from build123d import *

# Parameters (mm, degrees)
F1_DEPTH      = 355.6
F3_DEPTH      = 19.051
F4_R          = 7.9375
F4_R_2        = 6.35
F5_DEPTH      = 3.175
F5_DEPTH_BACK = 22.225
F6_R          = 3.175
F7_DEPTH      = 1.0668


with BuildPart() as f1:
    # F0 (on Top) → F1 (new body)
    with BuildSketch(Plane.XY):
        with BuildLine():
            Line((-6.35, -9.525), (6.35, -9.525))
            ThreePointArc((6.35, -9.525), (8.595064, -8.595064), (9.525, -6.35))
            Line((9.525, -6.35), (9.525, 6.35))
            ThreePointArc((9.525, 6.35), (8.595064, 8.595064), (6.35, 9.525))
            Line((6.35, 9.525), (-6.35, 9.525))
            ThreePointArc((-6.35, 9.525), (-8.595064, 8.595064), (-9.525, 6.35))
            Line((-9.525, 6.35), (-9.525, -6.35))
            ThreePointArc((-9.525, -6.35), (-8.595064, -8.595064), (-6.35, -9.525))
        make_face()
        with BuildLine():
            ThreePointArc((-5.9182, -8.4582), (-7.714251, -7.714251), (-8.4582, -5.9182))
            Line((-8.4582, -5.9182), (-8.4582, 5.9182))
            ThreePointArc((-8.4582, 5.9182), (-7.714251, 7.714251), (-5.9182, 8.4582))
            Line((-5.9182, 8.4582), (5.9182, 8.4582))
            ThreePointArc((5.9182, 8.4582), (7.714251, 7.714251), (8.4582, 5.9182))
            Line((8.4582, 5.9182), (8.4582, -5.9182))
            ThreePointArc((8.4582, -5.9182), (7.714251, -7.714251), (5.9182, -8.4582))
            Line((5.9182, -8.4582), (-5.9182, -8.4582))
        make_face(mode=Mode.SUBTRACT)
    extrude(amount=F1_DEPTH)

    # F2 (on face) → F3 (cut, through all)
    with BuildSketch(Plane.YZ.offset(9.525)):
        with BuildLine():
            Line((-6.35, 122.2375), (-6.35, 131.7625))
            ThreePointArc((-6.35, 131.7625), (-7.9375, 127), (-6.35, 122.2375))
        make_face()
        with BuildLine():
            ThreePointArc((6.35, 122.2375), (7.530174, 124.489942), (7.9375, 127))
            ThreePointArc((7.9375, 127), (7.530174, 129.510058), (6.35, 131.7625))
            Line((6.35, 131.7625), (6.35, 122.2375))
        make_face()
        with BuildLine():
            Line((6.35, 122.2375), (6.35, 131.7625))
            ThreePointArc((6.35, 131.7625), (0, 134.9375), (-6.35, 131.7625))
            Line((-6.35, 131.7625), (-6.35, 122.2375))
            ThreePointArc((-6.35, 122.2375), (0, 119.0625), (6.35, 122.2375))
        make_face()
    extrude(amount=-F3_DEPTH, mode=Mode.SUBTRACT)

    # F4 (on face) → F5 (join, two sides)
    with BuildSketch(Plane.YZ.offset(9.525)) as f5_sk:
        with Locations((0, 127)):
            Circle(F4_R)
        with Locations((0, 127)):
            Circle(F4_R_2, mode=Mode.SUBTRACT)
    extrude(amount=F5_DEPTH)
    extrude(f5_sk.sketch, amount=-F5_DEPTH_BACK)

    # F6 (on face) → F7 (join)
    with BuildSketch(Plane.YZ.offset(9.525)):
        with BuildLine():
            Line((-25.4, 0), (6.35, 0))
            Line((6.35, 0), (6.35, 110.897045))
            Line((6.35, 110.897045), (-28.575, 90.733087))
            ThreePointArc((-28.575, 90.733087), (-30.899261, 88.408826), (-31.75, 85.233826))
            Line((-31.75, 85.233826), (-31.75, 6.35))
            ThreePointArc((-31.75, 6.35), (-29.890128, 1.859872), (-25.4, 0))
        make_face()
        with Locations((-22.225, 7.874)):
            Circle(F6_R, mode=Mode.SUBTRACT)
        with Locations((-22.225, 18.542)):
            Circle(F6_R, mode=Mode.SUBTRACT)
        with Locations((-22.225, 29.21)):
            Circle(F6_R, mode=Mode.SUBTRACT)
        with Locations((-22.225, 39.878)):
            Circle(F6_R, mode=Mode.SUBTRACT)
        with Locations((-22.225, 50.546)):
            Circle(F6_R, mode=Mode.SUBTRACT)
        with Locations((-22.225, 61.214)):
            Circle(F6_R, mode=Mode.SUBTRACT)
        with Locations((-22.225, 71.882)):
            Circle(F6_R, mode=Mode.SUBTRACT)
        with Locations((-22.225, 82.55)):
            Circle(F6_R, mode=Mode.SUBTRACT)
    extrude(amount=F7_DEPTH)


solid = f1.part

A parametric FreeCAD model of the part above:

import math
import FreeCAD as App
import Part
import Sketcher

V = App.Vector
Q = App.Units.Quantity

doc = App.newDocument("Part")
body = doc.addObject("PartDesign::Body", "Body")

# Sketch on XY plane
sketch1 = body.newObject("Sketcher::SketchObject", "Sketch")
sketch1.AttachmentSupport = (doc.getObject("XY_Plane"), [""])
sketch1.MapMode = "FlatFace"
sketch1.addGeometry(Part.LineSegment(V(-6.3, -9.5, 0), V(6.3, -9.5, 0)), False)
sketch1.addGeometry(Part.ArcOfCircle(Part.Circle(V(6.3, -6.3, 0), V(0, 0, 1), 3.2), math.radians(-90), math.radians(0)), False)
sketch1.addGeometry(Part.LineSegment(V(9.5, -6.3, 0), V(9.5, 6.3, 0)), False)
sketch1.addGeometry(Part.ArcOfCircle(Part.Circle(V(6.3, 6.3, 0), V(0, 0, 1), 3.2), math.radians(0), math.radians(90)), False)
sketch1.addGeometry(Part.LineSegment(V(6.3, 9.5, 0), V(-6.3, 9.5, 0)), False)
sketch1.addGeometry(Part.ArcOfCircle(Part.Circle(V(-6.3, 6.3, 0), V(0, 0, 1), 3.2), math.radians(90), math.radians(180)), False)
sketch1.addGeometry(Part.LineSegment(V(-9.5, 6.3, 0), V(-9.5, -6.3, 0)), False)
sketch1.addGeometry(Part.ArcOfCircle(Part.Circle(V(-6.3, -6.3, 0), V(0, 0, 1), 3.2), math.radians(-180), math.radians(-90)), False)
sketch1.addGeometry(Part.LineSegment(V(5.9, -8.5, 0), V(-5.9, -8.5, 0)), False)
sketch1.addGeometry(Part.ArcOfCircle(Part.Circle(V(-5.9, -5.9, 0), V(0, 0, 1), 2.5), math.radians(-180), math.radians(-90)), False)
sketch1.addGeometry(Part.LineSegment(V(-8.5, -5.9, 0), V(-8.5, 5.9, 0)), False)
sketch1.addGeometry(Part.ArcOfCircle(Part.Circle(V(-5.9, 5.9, 0), V(0, 0, 1), 2.5), math.radians(90), math.radians(180)), False)
sketch1.addGeometry(Part.LineSegment(V(-5.9, 8.5, 0), V(5.9, 8.5, 0)), False)
sketch1.addGeometry(Part.ArcOfCircle(Part.Circle(V(5.9, 5.9, 0), V(0, 0, 1), 2.5), math.radians(0), math.radians(90)), False)
sketch1.addGeometry(Part.LineSegment(V(8.5, 5.9, 0), V(8.5, -5.9, 0)), False)
sketch1.addGeometry(Part.ArcOfCircle(Part.Circle(V(5.9, -5.9, 0), V(0, 0, 1), 2.5), math.radians(-90), math.radians(0)), False)
sketch1.addConstraint(Sketcher.Constraint("Tangent", 0, 2, 1, 1))
sketch1.addConstraint(Sketcher.Constraint("Tangent", 1, 2, 2, 1))
sketch1.addConstraint(Sketcher.Constraint("Tangent", 2, 2, 3, 1))
sketch1.addConstraint(Sketcher.Constraint("Tangent", 3, 2, 4, 1))
sketch1.addConstraint(Sketcher.Constraint("Tangent", 4, 2, 5, 1))
sketch1.addConstraint(Sketcher.Constraint("Tangent", 5, 2, 6, 1))
sketch1.addConstraint(Sketcher.Constraint("Tangent", 6, 2, 7, 1))
sketch1.addConstraint(Sketcher.Constraint("Tangent", 7, 2, 0, 1))
sketch1.addConstraint(Sketcher.Constraint("Tangent", 8, 2, 9, 2))
sketch1.addConstraint(Sketcher.Constraint("Tangent", 9, 1, 10, 1))
sketch1.addConstraint(Sketcher.Constraint("Tangent", 10, 2, 11, 2))
sketch1.addConstraint(Sketcher.Constraint("Tangent", 11, 1, 12, 1))
sketch1.addConstraint(Sketcher.Constraint("Tangent", 12, 2, 13, 2))
sketch1.addConstraint(Sketcher.Constraint("Tangent", 13, 1, 14, 1))
sketch1.addConstraint(Sketcher.Constraint("Tangent", 14, 2, 15, 2))
sketch1.addConstraint(Sketcher.Constraint("Tangent", 15, 1, 8, 1))
sketch1.addConstraint(Sketcher.Constraint("Horizontal", 0))
sketch1.addConstraint(Sketcher.Constraint("Vertical", 2))
sketch1.addConstraint(Sketcher.Constraint("Horizontal", 4))
sketch1.addConstraint(Sketcher.Constraint("Vertical", 6))
sketch1.addConstraint(Sketcher.Constraint("Horizontal", 8))
sketch1.addConstraint(Sketcher.Constraint("Vertical", 10))
sketch1.addConstraint(Sketcher.Constraint("Horizontal", 12))
sketch1.addConstraint(Sketcher.Constraint("Vertical", 14))
sketch1.addConstraint(Sketcher.Constraint("Equal", 1, 3))
sketch1.addConstraint(Sketcher.Constraint("Equal", 3, 5))
sketch1.addConstraint(Sketcher.Constraint("Equal", 5, 7))
sketch1.addConstraint(Sketcher.Constraint("Equal", 9, 11))
sketch1.addConstraint(Sketcher.Constraint("Equal", 11, 13))
sketch1.addConstraint(Sketcher.Constraint("Equal", 13, 15))
sketch1.addConstraint(Sketcher.Constraint("Symmetric", 1, 3, 5, 3, -1, 1))
sketch1.addConstraint(Sketcher.Constraint("Symmetric", 9, 3, 13, 3, -1, 1))
sketch1.addConstraint(Sketcher.Constraint("Equal", 4, 2))
sketch1.addConstraint(Sketcher.Constraint("Equal", 12, 10))
sketch1.addConstraint(Sketcher.Constraint("Radius", 9, Q("0.1 in")))
sketch1.addConstraint(Sketcher.Constraint("DistanceX", 0, 1, 0, 2, Q("0.5 in")))
sketch1.addConstraint(Sketcher.Constraint("Radius", 1, Q("0.125 in")))
sketch1.addConstraint(Sketcher.Constraint("DistanceX", 8, 2, 8, 1, Q("0.466 in")))
pad1 = body.newObject("PartDesign::Pad", "Pad")
pad1.Profile = sketch1
pad1.Length = Q("14 in")

# Sketch on YZ plane
sketch2 = body.newObject("Sketcher::SketchObject", "Sketch001")
sketch2.AttachmentSupport = (doc.getObject("YZ_Plane"), [""])
sketch2.MapMode = "FlatFace"
sketch2.AttachmentOffset = App.Placement(V(0, 0, 0.375 * 25.4), App.Rotation())
sketch2.addGeometry(Part.ArcOfCircle(Part.Circle(V(0, 127, 0), V(0, 0, 1), 8), math.radians(-37), math.radians(0)), False)
sketch2.addGeometry(Part.ArcOfCircle(Part.Circle(V(0, 127, 0), V(0, 0, 1), 8), math.radians(0), math.radians(37)), False)
sketch2.addGeometry(Part.ArcOfCircle(Part.Circle(V(0, 127, 0), V(0, 0, 1), 8), math.radians(37), math.radians(323)), False)
sketch2.addConstraint(Sketcher.Constraint("Tangent", 0, 2, 1, 1))
sketch2.addConstraint(Sketcher.Constraint("Tangent", 1, 2, 2, 1))
sketch2.addConstraint(Sketcher.Constraint("Tangent", 2, 2, 0, 1))
sketch2.addConstraint(Sketcher.Constraint("PointOnObject", 2, 3, -2))
sketch2.addConstraint(Sketcher.Constraint("Horizontal", 2, 3, 0, 2))
sketch2.addConstraint(Sketcher.Constraint("Vertical", 1, 2, 2, 2))
sketch2.addConstraint(Sketcher.Constraint("DistanceY", -1, 1, 0, 3, Q("4.9999999 in")))
sketch2.addConstraint(Sketcher.Constraint("Radius", 2, Q("0.3125 in")))
sketch2.addConstraint(Sketcher.Constraint("DistanceX", -1, 1, 1, 2, Q("0.25 in")))
pocket1 = body.newObject("PartDesign::Pocket", "Pocket")
pocket1.Profile = sketch2
pocket1.Type = "ThroughAll"

# Sketch on YZ plane
sketch3 = body.newObject("Sketcher::SketchObject", "Sketch002")
sketch3.AttachmentSupport = (doc.getObject("YZ_Plane"), [""])
sketch3.MapMode = "FlatFace"
sketch3.AttachmentOffset = App.Placement(V(0, 0, 0.375 * 25.4), App.Rotation())
sketch3.addGeometry(Part.Circle(V(0, 127, 0), V(0, 0, 1), 8), False)
sketch3.addGeometry(Part.Circle(V(0, 127, 0), V(0, 0, 1), 6), False)
sketch3.addConstraint(Sketcher.Constraint("Coincident", 1, 3, 0, 3))
sketch3.addConstraint(Sketcher.Constraint("PointOnObject", 0, 3, -2))
sketch3.addConstraint(Sketcher.Constraint("Diameter", 1, Q("0.5 in")))
sketch3.addConstraint(Sketcher.Constraint("Diameter", 0, Q("0.625 in")))
sketch3.addConstraint(Sketcher.Constraint("DistanceY", -1, 1, 0, 3, Q("5 in")))
pad2 = body.newObject("PartDesign::Pad", "Pad001")
pad2.Profile = sketch3
pad2.Type = "TwoLengths"
pad2.Length = Q("0.125 in")
pad2.Length2 = Q("0.875 in")

# Sketch on YZ plane
sketch4 = body.newObject("Sketcher::SketchObject", "Sketch003")
sketch4.AttachmentSupport = (doc.getObject("YZ_Plane"), [""])
sketch4.MapMode = "FlatFace"
sketch4.AttachmentOffset = App.Placement(V(0, 0, 0.375 * 25.4), App.Rotation())
sketch4.addGeometry(Part.LineSegment(V(-25.4, 0, 0), V(6.3, 0, 0)), False)
sketch4.addGeometry(Part.LineSegment(V(6.3, 0, 0), V(6.3, 110.9, 0)), False)
sketch4.addGeometry(Part.LineSegment(V(6.3, 110.9, 0), V(-28.6, 90.7, 0)), False)
sketch4.addGeometry(Part.ArcOfCircle(Part.Circle(V(-25.4, 85.2, 0), V(0, 0, 1), 6.4), math.radians(120), math.radians(180)), False)
sketch4.addGeometry(Part.LineSegment(V(-31.8, 85.2, 0), V(-31.8, 6.3, 0)), False)
sketch4.addGeometry(Part.ArcOfCircle(Part.Circle(V(-25.4, 6.4, 0), V(0, 0, 1), 6.4), math.radians(-180), math.radians(-90)), False)
sketch4.addGeometry(Part.Circle(V(-22.2, 7.9, 0), V(0, 0, 1), 3.2), False)
sketch4.addGeometry(Part.Circle(V(-22.2, 18.5, 0), V(0, 0, 1), 3.2), False)
sketch4.addGeometry(Part.Circle(V(-22.2, 29.2, 0), V(0, 0, 1), 3.2), False)
sketch4.addGeometry(Part.Circle(V(-22.2, 39.9, 0), V(0, 0, 1), 3.2), False)
sketch4.addGeometry(Part.Circle(V(-22.2, 50.5, 0), V(0, 0, 1), 3.2), False)
sketch4.addGeometry(Part.Circle(V(-22.2, 61.2, 0), V(0, 0, 1), 3.2), False)
sketch4.addGeometry(Part.Circle(V(-22.2, 71.9, 0), V(0, 0, 1), 3.2), False)
sketch4.addGeometry(Part.Circle(V(-22.2, 82.5, 0), V(0, 0, 1), 3.2), False)
sketch4.addConstraint(Sketcher.Constraint("Coincident", 0, 2, 1, 1))
sketch4.addConstraint(Sketcher.Constraint("Coincident", 1, 2, 2, 1))
sketch4.addConstraint(Sketcher.Constraint("Tangent", 2, 2, 3, 1))
sketch4.addConstraint(Sketcher.Constraint("Tangent", 3, 2, 4, 1))
sketch4.addConstraint(Sketcher.Constraint("Tangent", 4, 2, 5, 1))
sketch4.addConstraint(Sketcher.Constraint("Tangent", 5, 2, 0, 1))
sketch4.addConstraint(Sketcher.Constraint("Horizontal", 0))
sketch4.addConstraint(Sketcher.Constraint("Vertical", 1))
sketch4.addConstraint(Sketcher.Constraint("Vertical", 4))
sketch4.addConstraint(Sketcher.Constraint("Equal", 3, 5))
sketch4.addConstraint(Sketcher.Constraint("Equal", 6, 7))
sketch4.addConstraint(Sketcher.Constraint("Equal", 7, 8))
sketch4.addConstraint(Sketcher.Constraint("Equal", 8, 9))
sketch4.addConstraint(Sketcher.Constraint("Equal", 9, 10))
sketch4.addConstraint(Sketcher.Constraint("Equal", 10, 11))
sketch4.addConstraint(Sketcher.Constraint("Equal", 11, 12))
sketch4.addConstraint(Sketcher.Constraint("Equal", 12, 13))
sketch4.addConstraint(Sketcher.Constraint("PointOnObject", 0, 2, -1))
sketch4.addConstraint(Sketcher.Constraint("Vertical", 6, 3, 7, 3))
sketch4.addConstraint(Sketcher.Constraint("Vertical", 7, 3, 8, 3))
sketch4.addConstraint(Sketcher.Constraint("Vertical", 8, 3, 9, 3))
sketch4.addConstraint(Sketcher.Constraint("Vertical", 9, 3, 10, 3))
sketch4.addConstraint(Sketcher.Constraint("Vertical", 10, 3, 11, 3))
sketch4.addConstraint(Sketcher.Constraint("Vertical", 11, 3, 12, 3))
sketch4.addConstraint(Sketcher.Constraint("Vertical", 12, 3, 13, 3))
sketch4.addConstraint(Sketcher.Constraint("Diameter", 6, Q("0.25 in")))
sketch4.addConstraint(Sketcher.Constraint("Radius", 3, Q("0.25 in")))
sketch4.addConstraint(Sketcher.Constraint("DistanceX", 3, 3, -1, 1, Q("1 in")))
sketch4.addConstraint(Sketcher.Constraint("Angle", 2, Q("-150 deg")))
sketch4.addConstraint(Sketcher.Constraint("DistanceX", 0, 1, 0, 2, Q("1.25 in")))
sketch4.addConstraint(Sketcher.Constraint("DistanceY", 5, 3, 8, 3, Q("0.9 in")))
sketch4.addConstraint(Sketcher.Constraint("DistanceY", -1, 1, 6, 3, Q("0.31 in")))
sketch4.addConstraint(Sketcher.Constraint("DistanceY", -1, 1, 7, 3, Q("0.73 in")))
sketch4.addConstraint(Sketcher.Constraint("DistanceY", -1, 1, 9, 3, Q("1.57 in")))
sketch4.addConstraint(Sketcher.Constraint("DistanceY", -1, 1, 10, 3, Q("1.99 in")))
sketch4.addConstraint(Sketcher.Constraint("DistanceY", -1, 1, 11, 3, Q("2.41 in")))
sketch4.addConstraint(Sketcher.Constraint("DistanceY", -1, 1, 12, 3, Q("2.83 in")))
sketch4.addConstraint(Sketcher.Constraint("DistanceY", -1, 1, 13, 3, Q("3.25 in")))
sketch4.addConstraint(Sketcher.Constraint("DistanceX", 2, 2, 13, 3, Q("0.25 in")))
sketch4.addConstraint(Sketcher.Constraint("DistanceY", 1, 1, 1, 2, Q("110.897045 mm")))
pad3 = body.newObject("PartDesign::Pad", "Pad002")
pad3.Profile = sketch4
pad3.Length = Q("0.042 in")

doc.recompute()
